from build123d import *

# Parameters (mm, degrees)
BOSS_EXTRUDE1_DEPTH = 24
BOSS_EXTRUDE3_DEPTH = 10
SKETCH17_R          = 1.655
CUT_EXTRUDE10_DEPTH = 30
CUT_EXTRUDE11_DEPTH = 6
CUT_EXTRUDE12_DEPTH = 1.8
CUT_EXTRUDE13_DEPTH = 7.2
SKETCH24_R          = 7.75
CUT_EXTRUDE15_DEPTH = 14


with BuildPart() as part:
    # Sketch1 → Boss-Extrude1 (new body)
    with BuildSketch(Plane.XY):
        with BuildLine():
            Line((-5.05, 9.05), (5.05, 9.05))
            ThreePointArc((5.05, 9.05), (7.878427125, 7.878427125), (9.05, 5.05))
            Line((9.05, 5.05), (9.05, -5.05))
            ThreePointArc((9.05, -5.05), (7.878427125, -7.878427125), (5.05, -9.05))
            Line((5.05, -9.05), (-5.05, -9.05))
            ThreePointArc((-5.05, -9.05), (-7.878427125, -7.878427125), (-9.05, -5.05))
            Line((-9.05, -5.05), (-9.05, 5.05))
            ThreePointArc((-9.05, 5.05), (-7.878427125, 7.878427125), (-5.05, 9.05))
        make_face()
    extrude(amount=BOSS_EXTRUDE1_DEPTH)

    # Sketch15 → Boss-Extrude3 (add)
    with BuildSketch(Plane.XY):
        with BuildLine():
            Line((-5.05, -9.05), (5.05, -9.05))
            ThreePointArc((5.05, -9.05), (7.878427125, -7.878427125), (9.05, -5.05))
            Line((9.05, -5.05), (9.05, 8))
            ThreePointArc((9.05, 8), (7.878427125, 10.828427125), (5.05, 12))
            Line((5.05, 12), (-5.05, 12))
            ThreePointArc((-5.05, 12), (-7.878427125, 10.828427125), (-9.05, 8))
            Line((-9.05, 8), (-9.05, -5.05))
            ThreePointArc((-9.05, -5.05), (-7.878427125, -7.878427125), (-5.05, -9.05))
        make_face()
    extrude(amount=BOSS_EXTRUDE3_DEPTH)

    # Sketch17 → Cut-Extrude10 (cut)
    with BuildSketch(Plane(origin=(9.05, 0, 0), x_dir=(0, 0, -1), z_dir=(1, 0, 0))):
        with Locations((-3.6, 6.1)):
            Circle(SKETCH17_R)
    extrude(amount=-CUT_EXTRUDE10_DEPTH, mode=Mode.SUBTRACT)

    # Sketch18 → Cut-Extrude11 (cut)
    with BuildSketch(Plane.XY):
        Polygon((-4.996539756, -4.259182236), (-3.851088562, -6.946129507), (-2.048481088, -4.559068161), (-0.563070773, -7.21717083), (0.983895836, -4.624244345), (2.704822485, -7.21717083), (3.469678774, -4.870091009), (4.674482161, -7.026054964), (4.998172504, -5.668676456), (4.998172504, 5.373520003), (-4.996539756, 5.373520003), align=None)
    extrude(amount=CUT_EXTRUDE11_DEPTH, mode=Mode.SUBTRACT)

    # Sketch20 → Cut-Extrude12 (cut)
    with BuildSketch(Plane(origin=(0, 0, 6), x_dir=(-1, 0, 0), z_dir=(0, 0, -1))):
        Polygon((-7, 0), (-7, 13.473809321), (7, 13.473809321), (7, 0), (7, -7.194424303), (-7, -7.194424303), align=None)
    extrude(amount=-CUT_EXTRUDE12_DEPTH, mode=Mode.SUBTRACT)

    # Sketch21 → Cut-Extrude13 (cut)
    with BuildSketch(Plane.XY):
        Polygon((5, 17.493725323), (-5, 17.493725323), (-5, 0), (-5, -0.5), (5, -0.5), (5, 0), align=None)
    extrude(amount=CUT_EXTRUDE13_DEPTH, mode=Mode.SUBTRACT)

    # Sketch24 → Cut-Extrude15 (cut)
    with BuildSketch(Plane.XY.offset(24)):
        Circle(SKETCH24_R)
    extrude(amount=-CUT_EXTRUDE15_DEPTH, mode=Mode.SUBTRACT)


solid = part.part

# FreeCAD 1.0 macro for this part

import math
import FreeCAD as App
import Part
import Sketcher
from FreeCAD import Vector
Q = App.Units.Quantity


def add_polygon(sketch, points):
    """Adds a closed chain of lines whose ends are joined by coincident constraints."""
    first, n = sketch.GeometryCount, len(points)
    for a, b in zip(points, points[1:] + points[:1]):
        sketch.addGeometry(Part.LineSegment(App.Vector(*a, 0), App.Vector(*b, 0)), False)
    for i in range(n):
        sketch.addConstraint(Sketcher.Constraint("Coincident", first + i, 2, first + (i + 1) % n, 1))

doc = App.newDocument("Part")
body = doc.addObject("PartDesign::Body", "Body")

# Sketch on XY plane
sketch1 = body.newObject("Sketcher::SketchObject", "Sketch")
sketch1.AttachmentSupport = (doc.getObject("XY_Plane"), [""])
sketch1.MapMode = "FlatFace"
sketch1.addGeometry([
    Part.LineSegment(Vector(5, 9.1, 0), Vector(-5, 9.1, 0)),  # 0
    Part.ArcOfCircle(Part.Circle(Vector(-5.1, 5.1, 0), Vector(0, 0, 1), 4), math.radians(90), math.radians(180)),  # 1
    Part.LineSegment(Vector(-9.1, 5, 0), Vector(-9.1, -5, 0)),  # 2
    Part.ArcOfCircle(Part.Circle(Vector(-5.1, -5.1, 0), Vector(0, 0, 1), 4), math.radians(180), math.radians(270)),  # 3
    Part.LineSegment(Vector(-5, -9.1, 0), Vector(5, -9.1, 0)),  # 4
    Part.ArcOfCircle(Part.Circle(Vector(5.1, -5.1, 0), Vector(0, 0, 1), 4), math.radians(-90), math.radians(0)),  # 5
    Part.LineSegment(Vector(9.1, -5, 0), Vector(9.1, 5, 0)),  # 6
    Part.ArcOfCircle(Part.Circle(Vector(5.1, 5.1, 0), Vector(0, 0, 1), 4), math.radians(0), math.radians(90)),  # 7
], False)
sketch1.addConstraint([
    Sketcher.Constraint("Tangent", 0, 2, 1, 1),
    Sketcher.Constraint("Tangent", 1, 2, 2, 1),
    Sketcher.Constraint("Tangent", 2, 2, 3, 1),
    Sketcher.Constraint("Tangent", 3, 2, 4, 1),
    Sketcher.Constraint("Tangent", 4, 2, 5, 1),
    Sketcher.Constraint("Tangent", 5, 2, 6, 1),
    Sketcher.Constraint("Tangent", 6, 2, 7, 1),
    Sketcher.Constraint("Tangent", 7, 2, 0, 1),
    Sketcher.Constraint("Horizontal", 0),
    Sketcher.Constraint("Vertical", 2),
    Sketcher.Constraint("Horizontal", 4),
    Sketcher.Constraint("Vertical", 6),
    Sketcher.Constraint("Equal", 1, 3),
    Sketcher.Constraint("Equal", 3, 5),
    Sketcher.Constraint("Equal", 5, 7),
    Sketcher.Constraint("Symmetric", 1, 3, 5, 3, -1, 1),
    Sketcher.Constraint("Equal", 4, 2),
    Sketcher.Constraint("Radius", 1, Q("4 mm")),
    Sketcher.Constraint("DistanceX", 0, 2, 0, 1, Q("10.1 mm")),
])
pad1 = body.newObject("PartDesign::Pad", "Pad")
pad1.Profile = sketch1
pad1.Length = 24

# Sketch on XY plane
sketch2 = body.newObject("Sketcher::SketchObject", "Sketch001")
sketch2.AttachmentSupport = (doc.getObject("XY_Plane"), [""])
sketch2.MapMode = "FlatFace"
sketch2.addGeometry([
    Part.LineSegment(Vector(-5, -9.1, 0), Vector(5, -9.1, 0)),  # 0
    Part.ArcOfCircle(Part.Circle(Vector(5.1, -5.1, 0), Vector(0, 0, 1), 4), math.radians(-90), math.radians(0)),  # 1
    Part.LineSegment(Vector(9.1, -5, 0), Vector(9.1, 8, 0)),  # 2
    Part.ArcOfCircle(Part.Circle(Vector(5.1, 8, 0), Vector(0, 0, 1), 4), math.radians(0), math.radians(90)),  # 3
    Part.LineSegment(Vector(5, 12, 0), Vector(-5, 12, 0)),  # 4
    Part.ArcOfCircle(Part.Circle(Vector(-5.1, 8, 0), Vector(0, 0, 1), 4), math.radians(90), math.radians(180)),  # 5
    Part.LineSegment(Vector(-9.1, 8, 0), Vector(-9.1, -5, 0)),  # 6
    Part.ArcOfCircle(Part.Circle(Vector(-5.1, -5.1, 0), Vector(0, 0, 1), 4), math.radians(180), math.radians(270)),  # 7
], False)
sketch2.addConstraint([
    Sketcher.Constraint("Tangent", 0, 2, 1, 1),
    Sketcher.Constraint("Tangent", 1, 2, 2, 1),
    Sketcher.Constraint("Tangent", 2, 2, 3, 1),
    Sketcher.Constraint("Tangent", 3, 2, 4, 1),
    Sketcher.Constraint("Tangent", 4, 2, 5, 1),
    Sketcher.Constraint("Tangent", 5, 2, 6, 1),
    Sketcher.Constraint("Tangent", 6, 2, 7, 1),
    Sketcher.Constraint("Tangent", 7, 2, 0, 1),
    Sketcher.Constraint("Horizontal", 0),
    Sketcher.Constraint("Vertical", 2),
    Sketcher.Constraint("Horizontal", 4),
    Sketcher.Constraint("Vertical", 6),
    Sketcher.Constraint("Equal", 1, 3),
    Sketcher.Constraint("Equal", 3, 5),
    Sketcher.Constraint("Equal", 5, 7),
    Sketcher.Constraint("Radius", 1, Q("4 mm")),
    Sketcher.Constraint("DistanceX", 0, 1, 0, 2, Q("10.1 mm")),
    Sketcher.Constraint("DistanceY", -1, 1, 3, 3, Q("8 mm")),
    Sketcher.Constraint("DistanceY", 2, 1, 2, 2, Q("13.05 mm")),
    Sketcher.Constraint("DistanceX", -1, 1, 1, 3, Q("5.05 mm")),
])
pad2 = body.newObject("PartDesign::Pad", "Pad001")
pad2.Profile = sketch2
pad2.Length = 10

# Sketch on YZ plane
sketch3 = body.newObject("Sketcher::SketchObject", "Sketch002")
sketch3.AttachmentSupport = (doc.getObject("YZ_Plane"), [""])
sketch3.MapMode = "FlatFace"
sketch3.AttachmentOffset = App.Placement(Vector(0, 0, 9.05), App.Rotation())
sketch3.addGeometry(Part.Circle(Vector(6.1, 3.6, 0), Vector(0, 0, 1), 1.7), False)
sketch3.addConstraint([
    Sketcher.Constraint("Diameter", 0, Q("3.31 mm")),
    Sketcher.Constraint("DistanceX", -1, 1, 0, 3, Q("6.1 mm")),
    Sketcher.Constraint("DistanceY", -1, 1, 0, 3, Q("3.6 mm")),
])
pocket1 = body.newObject("PartDesign::Pocket", "Pocket")
pocket1.Profile = sketch3
pocket1.Length = 30

# Sketch on XY plane
sketch4 = body.newObject("Sketcher::SketchObject", "Sketch003")
sketch4.AttachmentSupport = (doc.getObject("XY_Plane"), [""])
sketch4.MapMode = "FlatFace"
add_polygon(sketch4, [(-5, -4.3), (-3.9, -6.9), (-2, -4.6), (-0.6, -7.2), (1, -4.6), (2.7, -7.2), (3.5, -4.9), (4.7, -7), (5, -5.7), (5, 5.4), (-5, 5.4)])  # lines 0-10
sketch4.addConstraint([
    Sketcher.Constraint("Vertical", 8),
    Sketcher.Constraint("Horizontal", 9),
    Sketcher.Constraint("Vertical", 10),
    Sketcher.Constraint("Parallel", 2, 6),
    Sketcher.Constraint("Horizontal", 2, 2, 4, 2),
    Sketcher.Constraint("Distance", 1, Q("2.99123 mm")),
    Sketcher.Constraint("Distance", 2, Q("3.044988 mm")),
    Sketcher.Constraint("Distance", 4, Q("3.11205 mm")),
    Sketcher.Constraint("Distance", 5, Q("2.46856 mm")),
    Sketcher.Constraint("Distance", 7, Q("1.39544 mm")),
    Sketcher.Constraint("DistanceX", 9, 2, 9, 1, Q("9.994712 mm")),
    Sketcher.Constraint("DistanceY", 8, 1, 8, 2, Q("11.042196 mm")),
    Sketcher.Constraint("DistanceY", 10, 2, 10, 1, Q("9.632702 mm")),
    Sketcher.Constraint("DistanceX", 0, 2, -1, 1, Q("3.851089 mm")),
    Sketcher.Constraint("DistanceY", 0, 2, -1, 1, Q("6.94613 mm")),
    Sketcher.Constraint("DistanceX", 1, 2, -1, 1, Q("2.048481 mm")),
    Sketcher.Constraint("DistanceX", 2, 2, -1, 1, Q("0.563071 mm")),
    Sketcher.Constraint("DistanceX", -1, 1, 5, 2, Q("3.469679 mm")),
    Sketcher.Constraint("DistanceY", 5, 2, -1, 1, Q("4.870091 mm")),
    Sketcher.Constraint("DistanceY", -1, 1, 8, 2, Q("5.37352 mm")),
    Sketcher.Constraint("DistanceX", 9, 2, -1, 1, Q("4.99654 mm")),
    Sketcher.Constraint("DistanceY", 6, 2, 3, 2, Q("2.401811 mm")),
])
pocket2 = body.newObject("PartDesign::Pocket", "Pocket001")
pocket2.Profile = sketch4
pocket2.Length = 6
pocket2.Reversed = True

# Sketch on XY plane
sketch5 = body.newObject("Sketcher::SketchObject", "Sketch004")
sketch5.AttachmentSupport = (doc.getObject("XY_Plane"), [""])
sketch5.MapMode = "FlatFace"
sketch5.AttachmentOffset = App.Placement(Vector(0, 0, 6), App.Rotation())
add_polygon(sketch5, [(7, 13), (7, -7), (-7, -7), (-7, 13)])  # lines 0-3
sketch5.addConstraint([
    Sketcher.Constraint("Vertical", 0),
    Sketcher.Constraint("Horizontal", 1),
    Sketcher.Constraint("Vertical", 2),
    Sketcher.Constraint("Horizontal", 3),
    Sketcher.Constraint("DistanceX", 1, 2, 1, 1, Q("14 mm")),
    Sketcher.Constraint("DistanceX", -1, 1, 0, 2, Q("7 mm")),
    Sketcher.Constraint("DistanceY", 0, 2, 0, 1, Q("20.668234 mm")),
    Sketcher.Constraint("DistanceY", -1, 1, 2, 2, Q("13.473809 mm")),
])
pocket3 = body.newObject("PartDesign::Pocket", "Pocket002")
pocket3.Profile = sketch5
pocket3.Length = 1.8
pocket3.Reversed = True

# Sketch on XY plane
sketch6 = body.newObject("Sketcher::SketchObject", "Sketch005")
sketch6.AttachmentSupport = (doc.getObject("XY_Plane"), [""])
sketch6.MapMode = "FlatFace"
add_polygon(sketch6, [(5, 17), (-5, 17), (-5, 0), (5, 0)])  # lines 0-3
sketch6.addConstraint([
    Sketcher.Constraint("Horizontal", 0),
    Sketcher.Constraint("Vertical", 1),
    Sketcher.Constraint("Horizontal", 2),
    Sketcher.Constraint("Vertical", 3),
    Sketcher.Constraint("DistanceX", 0, 2, 0, 1, Q("10 mm")),
    Sketcher.Constraint("DistanceX", 0, 2, -1, 1, Q("5 mm")),
    Sketcher.Constraint("DistanceY", 1, 2, -1, 1, Q("0.5 mm")),
    Sketcher.Constraint("DistanceY", 1, 2, 1, 1, Q("17.993725 mm")),
])
pocket4 = body.newObject("PartDesign::Pocket", "Pocket003")
pocket4.Profile = sketch6
pocket4.Length = 7.2
pocket4.Reversed = True

# Sketch on XY plane
sketch7 = body.newObject("Sketcher::SketchObject", "Sketch006")
sketch7.AttachmentSupport = (doc.getObject("XY_Plane"), [""])
sketch7.MapMode = "FlatFace"
sketch7.AttachmentOffset = App.Placement(Vector(0, 0, 24), App.Rotation())
sketch7.addGeometry(Part.Circle(Vector(0, 0, 0), Vector(0, 0, 1), 8), False)
sketch7.addConstraint([
    Sketcher.Constraint("Coincident", 0, 3, -1, 1),
    Sketcher.Constraint("Diameter", 0, Q("15.5 mm")),
])
pocket5 = body.newObject("PartDesign::Pocket", "Pocket004")
pocket5.Profile = sketch7
pocket5.Length = 14

doc.recompute()
